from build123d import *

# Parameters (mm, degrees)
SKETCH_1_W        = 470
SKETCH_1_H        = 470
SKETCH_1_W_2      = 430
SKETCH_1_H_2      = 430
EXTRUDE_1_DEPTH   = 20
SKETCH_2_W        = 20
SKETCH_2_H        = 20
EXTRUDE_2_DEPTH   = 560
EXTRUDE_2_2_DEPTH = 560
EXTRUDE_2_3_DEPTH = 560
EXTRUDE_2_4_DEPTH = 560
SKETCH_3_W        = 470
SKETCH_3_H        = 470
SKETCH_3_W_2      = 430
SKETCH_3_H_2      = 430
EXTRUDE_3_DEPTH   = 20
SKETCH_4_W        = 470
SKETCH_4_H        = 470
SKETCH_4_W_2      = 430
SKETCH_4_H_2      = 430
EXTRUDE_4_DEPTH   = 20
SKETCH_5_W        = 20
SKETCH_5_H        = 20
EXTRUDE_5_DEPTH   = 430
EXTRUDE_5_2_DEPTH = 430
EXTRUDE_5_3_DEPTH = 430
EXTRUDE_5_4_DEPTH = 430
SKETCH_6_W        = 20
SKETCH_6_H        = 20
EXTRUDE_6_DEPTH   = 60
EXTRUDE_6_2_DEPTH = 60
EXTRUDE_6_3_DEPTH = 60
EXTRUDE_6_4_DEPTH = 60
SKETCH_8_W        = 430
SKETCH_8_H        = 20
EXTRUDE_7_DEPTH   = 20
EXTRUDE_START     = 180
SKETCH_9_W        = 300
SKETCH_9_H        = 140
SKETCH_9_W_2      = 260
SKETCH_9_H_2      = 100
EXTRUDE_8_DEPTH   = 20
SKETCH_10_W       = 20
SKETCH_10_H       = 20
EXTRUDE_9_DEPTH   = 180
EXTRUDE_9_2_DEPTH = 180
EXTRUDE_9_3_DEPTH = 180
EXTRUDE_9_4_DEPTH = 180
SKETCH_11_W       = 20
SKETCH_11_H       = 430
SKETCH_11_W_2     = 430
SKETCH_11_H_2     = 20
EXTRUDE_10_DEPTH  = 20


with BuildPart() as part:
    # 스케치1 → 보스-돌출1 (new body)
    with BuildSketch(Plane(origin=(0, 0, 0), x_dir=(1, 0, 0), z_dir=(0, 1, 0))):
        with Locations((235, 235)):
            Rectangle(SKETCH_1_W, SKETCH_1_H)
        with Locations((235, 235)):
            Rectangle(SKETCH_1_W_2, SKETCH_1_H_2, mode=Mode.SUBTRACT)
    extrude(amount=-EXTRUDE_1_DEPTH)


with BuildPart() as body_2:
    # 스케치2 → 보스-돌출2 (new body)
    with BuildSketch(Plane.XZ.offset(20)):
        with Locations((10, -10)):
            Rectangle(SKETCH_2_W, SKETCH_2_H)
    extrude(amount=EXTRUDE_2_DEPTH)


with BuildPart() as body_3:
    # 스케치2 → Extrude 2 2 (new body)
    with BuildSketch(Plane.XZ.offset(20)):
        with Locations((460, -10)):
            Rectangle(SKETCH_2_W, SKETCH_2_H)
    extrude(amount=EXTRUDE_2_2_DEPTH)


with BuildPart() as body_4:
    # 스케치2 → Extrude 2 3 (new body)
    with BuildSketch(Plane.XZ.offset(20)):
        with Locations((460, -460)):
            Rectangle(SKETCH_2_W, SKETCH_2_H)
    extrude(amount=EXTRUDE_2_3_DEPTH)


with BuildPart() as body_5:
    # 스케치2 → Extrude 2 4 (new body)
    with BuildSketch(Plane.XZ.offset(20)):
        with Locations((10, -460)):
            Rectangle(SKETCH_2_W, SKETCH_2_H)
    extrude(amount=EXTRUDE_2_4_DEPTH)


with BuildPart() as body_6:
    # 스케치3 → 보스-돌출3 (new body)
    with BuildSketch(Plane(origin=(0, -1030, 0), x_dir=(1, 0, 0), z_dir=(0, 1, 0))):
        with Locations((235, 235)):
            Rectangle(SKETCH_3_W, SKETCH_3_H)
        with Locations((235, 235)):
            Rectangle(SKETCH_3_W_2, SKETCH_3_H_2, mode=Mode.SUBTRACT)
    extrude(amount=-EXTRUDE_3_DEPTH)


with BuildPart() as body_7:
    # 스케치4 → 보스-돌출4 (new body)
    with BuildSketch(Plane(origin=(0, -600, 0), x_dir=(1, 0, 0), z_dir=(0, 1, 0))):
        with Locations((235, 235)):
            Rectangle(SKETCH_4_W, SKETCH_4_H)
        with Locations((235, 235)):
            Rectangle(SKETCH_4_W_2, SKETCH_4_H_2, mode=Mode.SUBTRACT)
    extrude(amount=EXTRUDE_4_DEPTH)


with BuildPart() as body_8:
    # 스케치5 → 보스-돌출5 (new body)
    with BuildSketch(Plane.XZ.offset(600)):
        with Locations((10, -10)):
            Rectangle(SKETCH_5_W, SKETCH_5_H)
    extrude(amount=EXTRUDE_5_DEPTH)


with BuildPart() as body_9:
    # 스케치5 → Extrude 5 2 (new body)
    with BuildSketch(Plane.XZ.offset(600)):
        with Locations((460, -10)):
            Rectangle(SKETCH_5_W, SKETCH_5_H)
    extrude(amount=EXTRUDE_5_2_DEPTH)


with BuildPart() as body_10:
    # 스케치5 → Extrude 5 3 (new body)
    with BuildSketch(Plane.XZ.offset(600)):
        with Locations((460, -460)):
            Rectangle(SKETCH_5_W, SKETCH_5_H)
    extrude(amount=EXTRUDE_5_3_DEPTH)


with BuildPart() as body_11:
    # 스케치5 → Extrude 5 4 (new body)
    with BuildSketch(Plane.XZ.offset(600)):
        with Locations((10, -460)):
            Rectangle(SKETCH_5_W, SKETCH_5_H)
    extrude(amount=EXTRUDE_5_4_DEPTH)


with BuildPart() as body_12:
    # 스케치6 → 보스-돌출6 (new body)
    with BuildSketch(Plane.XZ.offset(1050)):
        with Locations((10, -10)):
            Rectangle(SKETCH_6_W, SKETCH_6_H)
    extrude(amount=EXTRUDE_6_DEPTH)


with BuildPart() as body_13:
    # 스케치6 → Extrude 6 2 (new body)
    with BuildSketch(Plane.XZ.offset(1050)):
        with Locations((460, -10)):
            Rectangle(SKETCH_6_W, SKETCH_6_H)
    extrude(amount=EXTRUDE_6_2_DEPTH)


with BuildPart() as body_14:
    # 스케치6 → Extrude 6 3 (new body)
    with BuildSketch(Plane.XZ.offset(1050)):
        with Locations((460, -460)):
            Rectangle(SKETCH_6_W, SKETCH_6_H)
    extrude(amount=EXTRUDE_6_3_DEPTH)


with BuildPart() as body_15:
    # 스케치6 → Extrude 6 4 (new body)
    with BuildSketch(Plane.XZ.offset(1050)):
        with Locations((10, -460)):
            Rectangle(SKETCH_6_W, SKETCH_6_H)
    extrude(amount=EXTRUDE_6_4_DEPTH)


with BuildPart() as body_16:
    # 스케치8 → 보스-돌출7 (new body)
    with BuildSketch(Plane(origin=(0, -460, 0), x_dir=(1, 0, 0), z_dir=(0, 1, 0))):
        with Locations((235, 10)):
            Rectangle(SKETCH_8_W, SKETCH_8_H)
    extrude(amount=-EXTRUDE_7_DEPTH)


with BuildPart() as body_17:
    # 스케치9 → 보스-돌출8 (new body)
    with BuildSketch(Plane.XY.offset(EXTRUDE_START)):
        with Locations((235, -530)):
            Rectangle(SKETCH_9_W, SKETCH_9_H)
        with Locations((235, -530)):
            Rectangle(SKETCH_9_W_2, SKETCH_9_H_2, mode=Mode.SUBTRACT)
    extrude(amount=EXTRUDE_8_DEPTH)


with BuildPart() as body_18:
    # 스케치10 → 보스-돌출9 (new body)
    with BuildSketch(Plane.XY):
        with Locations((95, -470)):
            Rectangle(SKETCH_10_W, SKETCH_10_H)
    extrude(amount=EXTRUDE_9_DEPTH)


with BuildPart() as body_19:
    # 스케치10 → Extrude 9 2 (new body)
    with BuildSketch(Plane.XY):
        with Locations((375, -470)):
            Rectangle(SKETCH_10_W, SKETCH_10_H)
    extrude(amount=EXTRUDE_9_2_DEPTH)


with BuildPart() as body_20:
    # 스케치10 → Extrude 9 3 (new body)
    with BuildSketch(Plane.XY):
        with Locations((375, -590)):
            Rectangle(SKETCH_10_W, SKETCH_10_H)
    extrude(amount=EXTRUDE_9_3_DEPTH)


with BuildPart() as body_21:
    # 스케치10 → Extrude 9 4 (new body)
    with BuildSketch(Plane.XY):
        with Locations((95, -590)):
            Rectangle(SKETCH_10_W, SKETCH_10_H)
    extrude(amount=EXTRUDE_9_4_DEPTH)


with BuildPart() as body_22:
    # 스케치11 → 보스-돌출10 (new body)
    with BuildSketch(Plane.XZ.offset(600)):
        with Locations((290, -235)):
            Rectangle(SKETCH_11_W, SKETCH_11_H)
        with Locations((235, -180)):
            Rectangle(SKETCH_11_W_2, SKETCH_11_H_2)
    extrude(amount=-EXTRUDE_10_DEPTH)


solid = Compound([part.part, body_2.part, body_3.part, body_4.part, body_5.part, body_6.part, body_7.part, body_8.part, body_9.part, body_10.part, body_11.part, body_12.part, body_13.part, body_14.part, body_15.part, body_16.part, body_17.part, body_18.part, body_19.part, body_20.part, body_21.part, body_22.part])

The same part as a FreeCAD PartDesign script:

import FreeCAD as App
import Part
import Sketcher

V = App.Vector


def add_polygon(sketch, points):
    """Adds a closed chain of lines whose ends are joined by coincident constraints."""
    first, n = sketch.GeometryCount, len(points)
    for a, b in zip(points, points[1:] + points[:1]):
        sketch.addGeometry(Part.LineSegment(App.Vector(*a, 0), App.Vector(*b, 0)), False)
    for i in range(n):
        sketch.addConstraint(Sketcher.Constraint("Coincident", first + i, 2, first + (i + 1) % n, 1))

doc = App.newDocument("Part")
params = doc.addObject("Spreadsheet::Sheet", "Params")
for row, (alias, value) in enumerate([
    ("sketch1_width", "470 mm"),
    ("sketch1_width2", "430 mm"),
    ("pad1_length", "20 mm"),
    ("sketch2_width", "20 mm"),
    ("pad2_length", "560 mm"),
    ("sketch3_width", "20 mm"),
    ("pad3_length", "560 mm"),
    ("sketch4_width", "20 mm"),
    ("pad4_length", "560 mm"),
    ("sketch5_width", "20 mm"),
    ("pad5_length", "560 mm"),
    ("sketch6_width", "470 mm"),
    ("sketch6_width2", "430 mm"),
    ("pad6_length", "20 mm"),
    ("sketch7_width", "470 mm"),
    ("sketch7_width2", "430 mm"),
    ("pad7_length", "20 mm"),
    ("sketch8_width", "20 mm"),
    ("pad8_length", "430 mm"),
    ("sketch9_width", "20 mm"),
    ("pad9_length", "430 mm"),
    ("sketch10_width", "20 mm"),
    ("pad10_length", "430 mm"),
    ("sketch11_width", "20 mm"),
    ("pad11_length", "430 mm"),
    ("sketch12_width", "20 mm"),
    ("pad12_length", "60 mm"),
    ("sketch13_width", "20 mm"),
    ("pad13_length", "60 mm"),
    ("sketch14_width", "20 mm"),
    ("pad14_length", "60 mm"),
    ("sketch15_width", "20 mm"),
    ("pad15_length", "60 mm"),
    ("sketch16_width", "430 mm"),
    ("sketch16_height", "20 mm"),
    ("pad16_length", "20 mm"),
    ("sketch17_width", "300 mm"),
    ("sketch17_width2", "260 mm"),
    ("sketch17_height", "140 mm"),
    ("sketch17_height2", "100 mm"),
    ("pad17_length", "20 mm"),
    ("sketch18_width", "20 mm"),
    ("pad18_length", "180 mm"),
    ("sketch19_width", "20 mm"),
    ("pad19_length", "180 mm"),
    ("sketch20_width", "20 mm"),
    ("pad20_length", "180 mm"),
    ("sketch21_width", "20 mm"),
    ("pad21_length", "180 mm"),
    ("sketch22_width", "20 mm"),
    ("sketch22_width2", "150 mm"),
    ("sketch22_width3", "260 mm"),
    ("pad22_length", "20 mm"),
], start=1):
    params.set(f"A{row}", alias)
    params.set(f"B{row}", "=" + value)
    params.setAlias(f"B{row}", alias)

body = doc.addObject("PartDesign::Body", "Body")

# Sketch on XZ plane
sketch1 = doc.addObject("Sketcher::SketchObject", "Sketch")
body.addObject(sketch1)
sketch1.AttachmentSupport = (doc.XZ_Plane, [""])
sketch1.MapMode = "FlatFace"
add_polygon(sketch1, [(0, -470), (0, 0), (470, 0), (470, -470)])  # lines 0-3
add_polygon(sketch1, [(450, -20), (20, -20), (20, -450), (450, -450)])  # lines 4-7
sketch1.addConstraint(Sketcher.Constraint("Vertical", 0))
sketch1.addConstraint(Sketcher.Constraint("Horizontal", 1))
sketch1.addConstraint(Sketcher.Constraint("Vertical", 2))
sketch1.addConstraint(Sketcher.Constraint("Horizontal", 3))
sketch1.addConstraint(Sketcher.Constraint("Horizontal", 4))
sketch1.addConstraint(Sketcher.Constraint("Vertical", 5))
sketch1.addConstraint(Sketcher.Constraint("Horizontal", 6))
sketch1.addConstraint(Sketcher.Constraint("Vertical", 7))
sketch1.addConstraint(Sketcher.Constraint("Coincident", 0, 2, -1, 1))
sketch1.addConstraint(Sketcher.Constraint("Equal", 3, 0))
sketch1.addConstraint(Sketcher.Constraint("Equal", 6, 5))
sketch1.addConstraint(Sketcher.Constraint("DistanceX", 1, 1, 1, 2, 470.0))
sketch1.addConstraint(Sketcher.Constraint("DistanceX", 4, 2, 4, 1, 430.0))
sketch1.addConstraint(Sketcher.Constraint("DistanceX", -1, 1, 4, 2, 20.0))
sketch1.addConstraint(Sketcher.Constraint("DistanceY", 4, 2, -1, 1, 20.0))
sketch1.setExpression("Constraints[19]", "Params.sketch1_width")
sketch1.setExpression("Constraints[20]", "Params.sketch1_width2")
pad1 = doc.addObject("PartDesign::Pad", "Pad")
body.addObject(pad1)
pad1.Profile = sketch1
pad1.setExpression("Length", "Params.pad1_length")
body2 = doc.addObject("PartDesign::Body", "Body001")

# Sketch on XZ plane
sketch2 = doc.addObject("Sketcher::SketchObject", "Sketch001")
body2.addObject(sketch2)
sketch2.AttachmentSupport = (doc.getObject("XZ_Plane001"), [""])
sketch2.MapMode = "FlatFace"
sketch2.AttachmentOffset = App.Placement(V(0, 0, 20), App.Rotation())
add_polygon(sketch2, [(0, 0), (0, -20), (20, -20), (20, 0)])  # lines 0-3
sketch2.addConstraint(Sketcher.Constraint("Vertical", 0))
sketch2.addConstraint(Sketcher.Constraint("Horizontal", 1))
sketch2.addConstraint(Sketcher.Constraint("Vertical", 2))
sketch2.addConstraint(Sketcher.Constraint("Horizontal", 3))
sketch2.addConstraint(Sketcher.Constraint("Coincident", 3, 2, -1, 1))
sketch2.addConstraint(Sketcher.Constraint("Equal", 3, 0))
sketch2.addConstraint(Sketcher.Constraint("DistanceX", 1, 1, 1, 2, 20.0))
sketch2.setExpression("Constraints[10]", "Params.sketch2_width")
pad2 = doc.addObject("PartDesign::Pad", "Pad001")
body2.addObject(pad2)
pad2.Profile = sketch2
pad2.setExpression("Length", "Params.pad2_length")
body3 = doc.addObject("PartDesign::Body", "Body002")

# Sketch on XZ plane
sketch3 = doc.addObject("Sketcher::SketchObject", "Sketch002")
body3.addObject(sketch3)
sketch3.AttachmentSupport = (doc.getObject("XZ_Plane002"), [""])
sketch3.MapMode = "FlatFace"
sketch3.AttachmentOffset = App.Placement(V(0, 0, 20), App.Rotation())
add_polygon(sketch3, [(450, 0), (450, -20), (470, -20), (470, 0)])  # lines 0-3
sketch3.addConstraint(Sketcher.Constraint("Vertical", 0))
sketch3.addConstraint(Sketcher.Constraint("Horizontal", 1))
sketch3.addConstraint(Sketcher.Constraint("Vertical", 2))
sketch3.addConstraint(Sketcher.Constraint("Horizontal", 3))
sketch3.addConstraint(Sketcher.Constraint("PointOnObject", 2, 2, -1))
sketch3.addConstraint(Sketcher.Constraint("Equal", 3, 0))
sketch3.addConstraint(Sketcher.Constraint("DistanceX", 1, 1, 1, 2, 20.0))
sketch3.addConstraint(Sketcher.Constraint("DistanceX", -1, 1, 0, 2, 450.0))
sketch3.setExpression("Constraints[10]", "Params.sketch3_width")
pad3 = doc.addObject("PartDesign::Pad", "Pad002")
body3.addObject(pad3)
pad3.Profile = sketch3
pad3.setExpression("Length", "Params.pad3_length")
body4 = doc.addObject("PartDesign::Body", "Body003")

# Sketch on XZ plane
sketch4 = doc.addObject("Sketcher::SketchObject", "Sketch003")
body4.addObject(sketch4)
sketch4.AttachmentSupport = (doc.getObject("XZ_Plane003"), [""])
sketch4.MapMode = "FlatFace"
sketch4.AttachmentOffset = App.Placement(V(0, 0, 20), App.Rotation())
add_polygon(sketch4, [(450, -450), (450, -470), (470, -470), (470, -450)])  # lines 0-3
sketch4.addConstraint(Sketcher.Constraint("Vertical", 0))
sketch4.addConstraint(Sketcher.Constraint("Horizontal", 1))
sketch4.addConstraint(Sketcher.Constraint("Vertical", 2))
sketch4.addConstraint(Sketcher.Constraint("Horizontal", 3))
sketch4.addConstraint(Sketcher.Constraint("Equal", 3, 0))
sketch4.addConstraint(Sketcher.Constraint("DistanceX", 1, 1, 1, 2, 20.0))
sketch4.addConstraint(Sketcher.Constraint("DistanceX", -1, 1, 0, 2, 450.0))
sketch4.addConstraint(Sketcher.Constraint("DistanceY", 0, 2, -1, 1, 470.0))
sketch4.setExpression("Constraints[9]", "Params.sketch4_width")
pad4 = doc.addObject("PartDesign::Pad", "Pad003")
body4.addObject(pad4)
pad4.Profile = sketch4
pad4.setExpression("Length", "Params.pad4_length")
body5 = doc.addObject("PartDesign::Body", "Body004")

# Sketch on XZ plane
sketch5 = doc.addObject("Sketcher::SketchObject", "Sketch004")
body5.addObject(sketch5)
sketch5.AttachmentSupport = (doc.getObject("XZ_Plane004"), [""])
sketch5.MapMode = "FlatFace"
sketch5.AttachmentOffset = App.Placement(V(0, 0, 20), App.Rotation())
add_polygon(sketch5, [(0, -450), (0, -470), (20, -470), (20, -450)])  # lines 0-3
sketch5.addConstraint(Sketcher.Constraint("Vertical", 0))
sketch5.addConstraint(Sketcher.Constraint("Horizontal", 1))
sketch5.addConstraint(Sketcher.Constraint("Vertical", 2))
sketch5.addConstraint(Sketcher.Constraint("Horizontal", 3))
sketch5.addConstraint(Sketcher.Constraint("PointOnObject", 0, 2, -2))
sketch5.addConstraint(Sketcher.Constraint("Equal", 3, 0))
sketch5.addConstraint(Sketcher.Constraint("DistanceX", 1, 1, 1, 2, 20.0))
sketch5.addConstraint(Sketcher.Constraint("DistanceY", 0, 2, -1, 1, 470.0))
sketch5.setExpression("Constraints[10]", "Params.sketch5_width")
pad5 = doc.addObject("PartDesign::Pad", "Pad004")
body5.addObject(pad5)
pad5.Profile = sketch5
pad5.setExpression("Length", "Params.pad5_length")
body6 = doc.addObject("PartDesign::Body", "Body005")

# Sketch on XZ plane
sketch6 = doc.addObject("Sketcher::SketchObject", "Sketch005")
body6.addObject(sketch6)
sketch6.AttachmentSupport = (doc.getObject("XZ_Plane005"), [""])
sketch6.MapMode = "FlatFace"
sketch6.AttachmentOffset = App.Placement(V(0, 0, 1030), App.Rotation())
add_polygon(sketch6, [(0, -470), (0, 0), (470, 0), (470, -470)])  # lines 0-3
add_polygon(sketch6, [(450, -20), (20, -20), (20, -450), (450, -450)])  # lines 4-7
sketch6.addConstraint(Sketcher.Constraint("Vertical", 0))
sketch6.addConstraint(Sketcher.Constraint("Horizontal", 1))
sketch6.addConstraint(Sketcher.Constraint("Vertical", 2))
sketch6.addConstraint(Sketcher.Constraint("Horizontal", 3))
sketch6.addConstraint(Sketcher.Constraint("Horizontal", 4))
sketch6.addConstraint(Sketcher.Constraint("Vertical", 5))
sketch6.addConstraint(Sketcher.Constraint("Horizontal", 6))
sketch6.addConstraint(Sketcher.Constraint("Vertical", 7))
sketch6.addConstraint(Sketcher.Constraint("Coincident", 0, 2, -1, 1))
sketch6.addConstraint(Sketcher.Constraint("Equal", 3, 0))
sketch6.addConstraint(Sketcher.Constraint("Equal", 6, 5))
sketch6.addConstraint(Sketcher.Constraint("DistanceX", 1, 1, 1, 2, 470.0))
sketch6.addConstraint(Sketcher.Constraint("DistanceX", 4, 2, 4, 1, 430.0))
sketch6.addConstraint(Sketcher.Constraint("DistanceX", -1, 1, 4, 2, 20.0))
sketch6.addConstraint(Sketcher.Constraint("DistanceY", 4, 2, -1, 1, 20.0))
sketch6.setExpression("Constraints[19]", "Params.sketch6_width")
sketch6.setExpression("Constraints[20]", "Params.sketch6_width2")
pad6 = doc.addObject("PartDesign::Pad", "Pad005")
body6.addObject(pad6)
pad6.Profile = sketch6
pad6.setExpression("Length", "Params.pad6_length")
body7 = doc.addObject("PartDesign::Body", "Body006")

# Sketch on XZ plane
sketch7 = doc.addObject("Sketcher::SketchObject", "Sketch006")
body7.addObject(sketch7)
sketch7.AttachmentSupport = (doc.getObject("XZ_Plane006"), [""])
sketch7.MapMode = "FlatFace"
sketch7.AttachmentOffset = App.Placement(V(0, 0, 600), App.Rotation())
add_polygon(sketch7, [(0, -470), (0, 0), (470, 0), (470, -470)])  # lines 0-3
add_polygon(sketch7, [(450, -20), (20, -20), (20, -450), (450, -450)])  # lines 4-7
sketch7.addConstraint(Sketcher.Constraint("Vertical", 0))
sketch7.addConstraint(Sketcher.Constraint("Horizontal", 1))
sketch7.addConstraint(Sketcher.Constraint("Vertical", 2))
sketch7.addConstraint(Sketcher.Constraint("Horizontal", 3))
sketch7.addConstraint(Sketcher.Constraint("Horizontal", 4))
sketch7.addConstraint(Sketcher.Constraint("Vertical", 5))
sketch7.addConstraint(Sketcher.Constraint("Horizontal", 6))
sketch7.addConstraint(Sketcher.Constraint("Vertical", 7))
sketch7.addConstraint(Sketcher.Constraint("Coincident", 0, 2, -1, 1))
sketch7.addConstraint(Sketcher.Constraint("Equal", 3, 0))
sketch7.addConstraint(Sketcher.Constraint("Equal", 6, 5))
sketch7.addConstraint(Sketcher.Constraint("DistanceX", 1, 1, 1, 2, 470.0))
sketch7.addConstraint(Sketcher.Constraint("DistanceX", 4, 2, 4, 1, 430.0))
sketch7.addConstraint(Sketcher.Constraint("DistanceX", -1, 1, 4, 2, 20.0))
sketch7.addConstraint(Sketcher.Constraint("DistanceY", 4, 2, -1, 1, 20.0))
sketch7.setExpression("Constraints[19]", "Params.sketch7_width")
sketch7.setExpression("Constraints[20]", "Params.sketch7_width2")
pad7 = doc.addObject("PartDesign::Pad", "Pad006")
body7.addObject(pad7)
pad7.Profile = sketch7
pad7.setExpression("Length", "Params.pad7_length")
pad7.Reversed = True
body8 = doc.addObject("PartDesign::Body", "Body007")

# Sketch on XZ plane
sketch8 = doc.addObject("Sketcher::SketchObject", "Sketch007")
body8.addObject(sketch8)
sketch8.AttachmentSupport = (doc.getObject("XZ_Plane007"), [""])
sketch8.MapMode = "FlatFace"
sketch8.AttachmentOffset = App.Placement(V(0, 0, 600), App.Rotation())
add_polygon(sketch8, [(0, 0), (0, -20), (20, -20), (20, 0)])  # lines 0-3
sketch8.addConstraint(Sketcher.Constraint("Vertical", 0))
sketch8.addConstraint(Sketcher.Constraint("Horizontal", 1))
sketch8.addConstraint(Sketcher.Constraint("Vertical", 2))
sketch8.addConstraint(Sketcher.Constraint("Horizontal", 3))
sketch8.addConstraint(Sketcher.Constraint("Coincident", 3, 2, -1, 1))
sketch8.addConstraint(Sketcher.Constraint("Equal", 3, 0))
sketch8.addConstraint(Sketcher.Constraint("DistanceX", 1, 1, 1, 2, 20.0))
sketch8.setExpression("Constraints[10]", "Params.sketch8_width")
pad8 = doc.addObject("PartDesign::Pad", "Pad007")
body8.addObject(pad8)
pad8.Profile = sketch8
pad8.setExpression("Length", "Params.pad8_length")
body9 = doc.addObject("PartDesign::Body", "Body008")

# Sketch on XZ plane
sketch9 = doc.addObject("Sketcher::SketchObject", "Sketch008")
body9.addObject(sketch9)
sketch9.AttachmentSupport = (doc.getObject("XZ_Plane008"), [""])
sketch9.MapMode = "FlatFace"
sketch9.AttachmentOffset = App.Placement(V(0, 0, 600), App.Rotation())
add_polygon(sketch9, [(450, 0), (450, -20), (470, -20), (470, 0)])  # lines 0-3
sketch9.addConstraint(Sketcher.Constraint("Vertical", 0))
sketch9.addConstraint(Sketcher.Constraint("Horizontal", 1))
sketch9.addConstraint(Sketcher.Constraint("Vertical", 2))
sketch9.addConstraint(Sketcher.Constraint("Horizontal", 3))
sketch9.addConstraint(Sketcher.Constraint("PointOnObject", 2, 2, -1))
sketch9.addConstraint(Sketcher.Constraint("Equal", 3, 0))
sketch9.addConstraint(Sketcher.Constraint("DistanceX", 1, 1, 1, 2, 20.0))
sketch9.addConstraint(Sketcher.Constraint("DistanceX", -1, 1, 0, 2, 450.0))
sketch9.setExpression("Constraints[10]", "Params.sketch9_width")
pad9 = doc.addObject("PartDesign::Pad", "Pad008")
body9.addObject(pad9)
pad9.Profile = sketch9
pad9.setExpression("Length", "Params.pad9_length")
body10 = doc.addObject("PartDesign::Body", "Body009")

# Sketch on XZ plane
sketch10 = doc.addObject("Sketcher::SketchObject", "Sketch009")
body10.addObject(sketch10)
sketch10.AttachmentSupport = (doc.getObject("XZ_Plane009"), [""])
sketch10.MapMode = "FlatFace"
sketch10.AttachmentOffset = App.Placement(V(0, 0, 600), App.Rotation())
add_polygon(sketch10, [(450, -450), (450, -470), (470, -470), (470, -450)])  # lines 0-3
sketch10.addConstraint(Sketcher.Constraint("Vertical", 0))
sketch10.addConstraint(Sketcher.Constraint("Horizontal", 1))
sketch10.addConstraint(Sketcher.Constraint("Vertical", 2))
sketch10.addConstraint(Sketcher.Constraint("Horizontal", 3))
sketch10.addConstraint(Sketcher.Constraint("Equal", 3, 0))
sketch10.addConstraint(Sketcher.Constraint("DistanceX", 1, 1, 1, 2, 20.0))
sketch10.addConstraint(Sketcher.Constraint("DistanceX", -1, 1, 0, 2, 450.0))
sketch10.addConstraint(Sketcher.Constraint("DistanceY", 0, 2, -1, 1, 470.0))
sketch10.setExpression("Constraints[9]", "Params.sketch10_width")
pad10 = doc.addObject("PartDesign::Pad", "Pad009")
body10.addObject(pad10)
pad10.Profile = sketch10
pad10.setExpression("Length", "Params.pad10_length")
body11 = doc.addObject("PartDesign::Body", "Body010")

# Sketch on XZ plane
sketch11 = doc.addObject("Sketcher::SketchObject", "Sketch010")
body11.addObject(sketch11)
sketch11.AttachmentSupport = (doc.getObject("XZ_Plane010"), [""])
sketch11.MapMode = "FlatFace"
sketch11.AttachmentOffset = App.Placement(V(0, 0, 600), App.Rotation())
add_polygon(sketch11, [(0, -450), (0, -470), (20, -470), (20, -450)])  # lines 0-3
sketch11.addConstraint(Sketcher.Constraint("Vertical", 0))
sketch11.addConstraint(Sketcher.Constraint("Horizontal", 1))
sketch11.addConstraint(Sketcher.Constraint("Vertical", 2))
sketch11.addConstraint(Sketcher.Constraint("Horizontal", 3))
sketch11.addConstraint(Sketcher.Constraint("PointOnObject", 0, 2, -2))
sketch11.addConstraint(Sketcher.Constraint("Equal", 3, 0))
sketch11.addConstraint(Sketcher.Constraint("DistanceX", 1, 1, 1, 2, 20.0))
sketch11.addConstraint(Sketcher.Constraint("DistanceY", 0, 2, -1, 1, 470.0))
sketch11.setExpression("Constraints[10]", "Params.sketch11_width")
pad11 = doc.addObject("PartDesign::Pad", "Pad010")
body11.addObject(pad11)
pad11.Profile = sketch11
pad11.setExpression("Length", "Params.pad11_length")
body12 = doc.addObject("PartDesign::Body", "Body011")

# Sketch on XZ plane
sketch12 = doc.addObject("Sketcher::SketchObject", "Sketch011")
body12.addObject(sketch12)
sketch12.AttachmentSupport = (doc.getObject("XZ_Plane011"), [""])
sketch12.MapMode = "FlatFace"
sketch12.AttachmentOffset = App.Placement(V(0, 0, 1050), App.Rotation())
add_polygon(sketch12, [(0, 0), (0, -20), (20, -20), (20, 0)])  # lines 0-3
sketch12.addConstraint(Sketcher.Constraint("Vertical", 0))
sketch12.addConstraint(Sketcher.Constraint("Horizontal", 1))
sketch12.addConstraint(Sketcher.Constraint("Vertical", 2))
sketch12.addConstraint(Sketcher.Constraint("Horizontal", 3))
sketch12.addConstraint(Sketcher.Constraint("Coincident", 3, 2, -1, 1))
sketch12.addConstraint(Sketcher.Constraint("Equal", 3, 0))
sketch12.addConstraint(Sketcher.Constraint("DistanceX", 1, 1, 1, 2, 20.0))
sketch12.setExpression("Constraints[10]", "Params.sketch12_width")
pad12 = doc.addObject("PartDesign::Pad", "Pad011")
body12.addObject(pad12)
pad12.Profile = sketch12
pad12.setExpression("Length", "Params.pad12_length")
body13 = doc.addObject("PartDesign::Body", "Body012")

# Sketch on XZ plane
sketch13 = doc.addObject("Sketcher::SketchObject", "Sketch012")
body13.addObject(sketch13)
sketch13.AttachmentSupport = (doc.getObject("XZ_Plane012"), [""])
sketch13.MapMode = "FlatFace"
sketch13.AttachmentOffset = App.Placement(V(0, 0, 1050), App.Rotation())
add_polygon(sketch13, [(450, 0), (450, -20), (470, -20), (470, 0)])  # lines 0-3
sketch13.addConstraint(Sketcher.Constraint("Vertical", 0))
sketch13.addConstraint(Sketcher.Constraint("Horizontal", 1))
sketch13.addConstraint(Sketcher.Constraint("Vertical", 2))
sketch13.addConstraint(Sketcher.Constraint("Horizontal", 3))
sketch13.addConstraint(Sketcher.Constraint("PointOnObject", 2, 2, -1))
sketch13.addConstraint(Sketcher.Constraint("Equal", 3, 0))
sketch13.addConstraint(Sketcher.Constraint("DistanceX", 1, 1, 1, 2, 20.0))
sketch13.addConstraint(Sketcher.Constraint("DistanceX", -1, 1, 0, 2, 450.0))
sketch13.setExpression("Constraints[10]", "Params.sketch13_width")
pad13 = doc.addObject("PartDesign::Pad", "Pad012")
body13.addObject(pad13)
pad13.Profile = sketch13
pad13.setExpression("Length", "Params.pad13_length")
body14 = doc.addObject("PartDesign::Body", "Body013")

# Sketch on XZ plane
sketch14 = doc.addObject("Sketcher::SketchObject", "Sketch013")
body14.addObject(sketch14)
sketch14.AttachmentSupport = (doc.getObject("XZ_Plane013"), [""])
sketch14.MapMode = "FlatFace"
sketch14.AttachmentOffset = App.Placement(V(0, 0, 1050), App.Rotation())
add_polygon(sketch14, [(450, -450), (450, -470), (470, -470), (470, -450)])  # lines 0-3
sketch14.addConstraint(Sketcher.Constraint("Vertical", 0))
sketch14.addConstraint(Sketcher.Constraint("Horizontal", 1))
sketch14.addConstraint(Sketcher.Constraint("Vertical", 2))
sketch14.addConstraint(Sketcher.Constraint("Horizontal", 3))
sketch14.addConstraint(Sketcher.Constraint("Equal", 3, 0))
sketch14.addConstraint(Sketcher.Constraint("DistanceX", 1, 1, 1, 2, 20.0))
sketch14.addConstraint(Sketcher.Constraint("DistanceX", -1, 1, 0, 2, 450.0))
sketch14.addConstraint(Sketcher.Constraint("DistanceY", 0, 2, -1, 1, 470.0))
sketch14.setExpression("Constraints[9]", "Params.sketch14_width")
pad14 = doc.addObject("PartDesign::Pad", "Pad013")
body14.addObject(pad14)
pad14.Profile = sketch14
pad14.setExpression("Length", "Params.pad14_length")
body15 = doc.addObject("PartDesign::Body", "Body014")

# Sketch on XZ plane
sketch15 = doc.addObject("Sketcher::SketchObject", "Sketch014")
body15.addObject(sketch15)
sketch15.AttachmentSupport = (doc.getObject("XZ_Plane014"), [""])
sketch15.MapMode = "FlatFace"
sketch15.AttachmentOffset = App.Placement(V(0, 0, 1050), App.Rotation())
add_polygon(sketch15, [(0, -450), (0, -470), (20, -470), (20, -450)])  # lines 0-3
sketch15.addConstraint(Sketcher.Constraint("Vertical", 0))
sketch15.addConstraint(Sketcher.Constraint("Horizontal", 1))
sketch15.addConstraint(Sketcher.Constraint("Vertical", 2))
sketch15.addConstraint(Sketcher.Constraint("Horizontal", 3))
sketch15.addConstraint(Sketcher.Constraint("PointOnObject", 0, 2, -2))
sketch15.addConstraint(Sketcher.Constraint("Equal", 3, 0))
sketch15.addConstraint(Sketcher.Constraint("DistanceX", 1, 1, 1, 2, 20.0))
sketch15.addConstraint(Sketcher.Constraint("DistanceY", 0, 2, -1, 1, 470.0))
sketch15.setExpression("Constraints[10]", "Params.sketch15_width")
pad15 = doc.addObject("PartDesign::Pad", "Pad014")
body15.addObject(pad15)
pad15.Profile = sketch15
pad15.setExpression("Length", "Params.pad15_length")
body16 = doc.addObject("PartDesign::Body", "Body015")

# Sketch on XZ plane
sketch16 = doc.addObject("Sketcher::SketchObject", "Sketch015")
body16.addObject(sketch16)
sketch16.AttachmentSupport = (doc.getObject("XZ_Plane015"), [""])
sketch16.MapMode = "FlatFace"
sketch16.AttachmentOffset = App.Placement(V(0, 0, 460), App.Rotation())
add_polygon(sketch16, [(20, -20), (20, 0), (450, 0), (450, -20)])  # lines 0-3
sketch16.addConstraint(Sketcher.Constraint("Vertical", 0))
sketch16.addConstraint(Sketcher.Constraint("Horizontal", 1))
sketch16.addConstraint(Sketcher.Constraint("Vertical", 2))
sketch16.addConstraint(Sketcher.Constraint("Horizontal", 3))
sketch16.addConstraint(Sketcher.Constraint("PointOnObject", 0, 2, -1))
sketch16.addConstraint(Sketcher.Constraint("DistanceX", 1, 1, 1, 2, 430.0))
sketch16.addConstraint(Sketcher.Constraint("DistanceY", 0, 1, 0, 2, 20.0))
sketch16.addConstraint(Sketcher.Constraint("DistanceX", -1, 1, 0, 2, 20.0))
sketch16.setExpression("Constraints[9]", "Params.sketch16_width")
sketch16.setExpression("Constraints[10]", "Params.sketch16_height")
pad16 = doc.addObject("PartDesign::Pad", "Pad015")
body16.addObject(pad16)
pad16.Profile = sketch16
pad16.setExpression("Length", "Params.pad16_length")
body17 = doc.addObject("PartDesign::Body", "Body016")

# Sketch on XY plane
sketch17 = doc.addObject("Sketcher::SketchObject", "Sketch016")
body17.addObject(sketch17)
sketch17.AttachmentSupport = (doc.getObject("XY_Plane016"), [""])
sketch17.MapMode = "FlatFace"
sketch17.AttachmentOffset = App.Placement(V(0, 0, 180), App.Rotation())
add_polygon(sketch17, [(85, -460), (85, -600), (385, -600), (385, -460)])  # lines 0-3
add_polygon(sketch17, [(365, -580), (105, -580), (105, -480), (365, -480)])  # lines 4-7
sketch17.addConstraint(Sketcher.Constraint("Vertical", 0))
sketch17.addConstraint(Sketcher.Constraint("Horizontal", 1))
sketch17.addConstraint(Sketcher.Constraint("Vertical", 2))
sketch17.addConstraint(Sketcher.Constraint("Horizontal", 3))
sketch17.addConstraint(Sketcher.Constraint("Horizontal", 4))
sketch17.addConstraint(Sketcher.Constraint("Vertical", 5))
sketch17.addConstraint(Sketcher.Constraint("Horizontal", 6))
sketch17.addConstraint(Sketcher.Constraint("Vertical", 7))
sketch17.addConstraint(Sketcher.Constraint("DistanceX", 1, 1, 1, 2, 300.0))
sketch17.addConstraint(Sketcher.Constraint("DistanceX", 4, 2, 4, 1, 260.0))
sketch17.addConstraint(Sketcher.Constraint("DistanceY", 0, 2, 0, 1, 140.0))
sketch17.addConstraint(Sketcher.Constraint("DistanceY", 5, 1, 5, 2, 100.0))
sketch17.addConstraint(Sketcher.Constraint("DistanceX", -1, 1, 0, 2, 85.0))
sketch17.addConstraint(Sketcher.Constraint("DistanceY", 0, 2, -1, 1, 600.0))
sketch17.addConstraint(Sketcher.Constraint("DistanceX", -1, 1, 4, 2, 105.0))
sketch17.addConstraint(Sketcher.Constraint("DistanceY", 4, 2, -1, 1, 580.0))
sketch17.setExpression("Constraints[16]", "Params.sketch17_width")
sketch17.setExpression("Constraints[17]", "Params.sketch17_width2")
sketch17.setExpression("Constraints[18]", "Params.sketch17_height")
sketch17.setExpression("Constraints[19]", "Params.sketch17_height2")
pad17 = doc.addObject("PartDesign::Pad", "Pad016")
body17.addObject(pad17)
pad17.Profile = sketch17
pad17.setExpression("Length", "Params.pad17_length")
body18 = doc.addObject("PartDesign::Body", "Body017")

# Sketch on XY plane
sketch18 = doc.addObject("Sketcher::SketchObject", "Sketch017")
body18.addObject(sketch18)
sketch18.AttachmentSupport = (doc.getObject("XY_Plane017"), [""])
sketch18.MapMode = "FlatFace"
add_polygon(sketch18, [(85, -460), (85, -480), (105, -480), (105, -460)])  # lines 0-3
sketch18.addConstraint(Sketcher.Constraint("Vertical", 0))
sketch18.addConstraint(Sketcher.Constraint("Horizontal", 1))
sketch18.addConstraint(Sketcher.Constraint("Vertical", 2))
sketch18.addConstraint(Sketcher.Constraint("Horizontal", 3))
sketch18.addConstraint(Sketcher.Constraint("Equal", 3, 0))
sketch18.addConstraint(Sketcher.Constraint("DistanceX", 1, 1, 1, 2, 20.0))
sketch18.addConstraint(Sketcher.Constraint("DistanceX", -1, 1, 0, 2, 85.0))
sketch18.addConstraint(Sketcher.Constraint("DistanceY", 0, 2, -1, 1, 480.0))
sketch18.setExpression("Constraints[9]", "Params.sketch18_width")
pad18 = doc.addObject("PartDesign::Pad", "Pad017")
body18.addObject(pad18)
pad18.Profile = sketch18
pad18.setExpression("Length", "Params.pad18_length")
body19 = doc.addObject("PartDesign::Body", "Body018")

# Sketch on XY plane
sketch19 = doc.addObject("Sketcher::SketchObject", "Sketch018")
body19.addObject(sketch19)
sketch19.AttachmentSupport = (doc.getObject("XY_Plane018"), [""])
sketch19.MapMode = "FlatFace"
add_polygon(sketch19, [(365, -460), (365, -480), (385, -480), (385, -460)])  # lines 0-3
sketch19.addConstraint(Sketcher.Constraint("Vertical", 0))
sketch19.addConstraint(Sketcher.Constraint("Horizontal", 1))
sketch19.addConstraint(Sketcher.Constraint("Vertical", 2))
sketch19.addConstraint(Sketcher.Constraint("Horizontal", 3))
sketch19.addConstraint(Sketcher.Constraint("Equal", 3, 0))
sketch19.addConstraint(Sketcher.Constraint("DistanceX", 1, 1, 1, 2, 20.0))
sketch19.addConstraint(Sketcher.Constraint("DistanceX", -1, 1, 0, 2, 365.0))
sketch19.addConstraint(Sketcher.Constraint("DistanceY", 0, 2, -1, 1, 480.0))
sketch19.setExpression("Constraints[9]", "Params.sketch19_width")
pad19 = doc.addObject("PartDesign::Pad", "Pad018")
body19.addObject(pad19)
pad19.Profile = sketch19
pad19.setExpression("Length", "Params.pad19_length")
body20 = doc.addObject("PartDesign::Body", "Body019")

# Sketch on XY plane
sketch20 = doc.addObject("Sketcher::SketchObject", "Sketch019")
body20.addObject(sketch20)
sketch20.AttachmentSupport = (doc.getObject("XY_Plane019"), [""])
sketch20.MapMode = "FlatFace"
add_polygon(sketch20, [(365, -580), (365, -600), (385, -600), (385, -580)])  # lines 0-3
sketch20.addConstraint(Sketcher.Constraint("Vertical", 0))
sketch20.addConstraint(Sketcher.Constraint("Horizontal", 1))
sketch20.addConstraint(Sketcher.Constraint("Vertical", 2))
sketch20.addConstraint(Sketcher.Constraint("Horizontal", 3))
sketch20.addConstraint(Sketcher.Constraint("Equal", 3, 0))
sketch20.addConstraint(Sketcher.Constraint("DistanceX", 1, 1, 1, 2, 20.0))
sketch20.addConstraint(Sketcher.Constraint("DistanceX", -1, 1, 0, 2, 365.0))
sketch20.addConstraint(Sketcher.Constraint("DistanceY", 0, 2, -1, 1, 600.0))
sketch20.setExpression("Constraints[9]", "Params.sketch20_width")
pad20 = doc.addObject("PartDesign::Pad", "Pad019")
body20.addObject(pad20)
pad20.Profile = sketch20
pad20.setExpression("Length", "Params.pad20_length")
body21 = doc.addObject("PartDesign::Body", "Body020")

# Sketch on XY plane
sketch21 = doc.addObject("Sketcher::SketchObject", "Sketch020")
body21.addObject(sketch21)
sketch21.AttachmentSupport = (doc.getObject("XY_Plane020"), [""])
sketch21.MapMode = "FlatFace"
add_polygon(sketch21, [(85, -580), (85, -600), (105, -600), (105, -580)])  # lines 0-3
sketch21.addConstraint(Sketcher.Constraint("Vertical", 0))
sketch21.addConstraint(Sketcher.Constraint("Horizontal", 1))
sketch21.addConstraint(Sketcher.Constraint("Vertical", 2))
sketch21.addConstraint(Sketcher.Constraint("Horizontal", 3))
sketch21.addConstraint(Sketcher.Constraint("Equal", 3, 0))
sketch21.addConstraint(Sketcher.Constraint("DistanceX", 1, 1, 1, 2, 20.0))
sketch21.addConstraint(Sketcher.Constraint("DistanceX", -1, 1, 0, 2, 85.0))
sketch21.addConstraint(Sketcher.Constraint("DistanceY", 0, 2, -1, 1, 600.0))
sketch21.setExpression("Constraints[9]", "Params.sketch21_width")
pad21 = doc.addObject("PartDesign::Pad", "Pad020")
body21.addObject(pad21)
pad21.Profile = sketch21
pad21.setExpression("Length", "Params.pad21_length")
body22 = doc.addObject("PartDesign::Body", "Body021")

# Sketch on XZ plane
sketch22 = doc.addObject("Sketcher::SketchObject", "Sketch021")
body22.addObject(sketch22)
sketch22.AttachmentSupport = (doc.getObject("XZ_Plane021"), [""])
sketch22.MapMode = "FlatFace"
sketch22.AttachmentOffset = App.Placement(V(0, 0, 600), App.Rotation())
add_polygon(sketch22, [(280, -190), (280, -450), (300, -450), (300, -190), (450, -190), (450, -170), (300, -170), (300, -20), (280, -20), (280, -170), (20, -170), (20, -190)])  # lines 0-11
sketch22.addConstraint(Sketcher.Constraint("Vertical", 0))
sketch22.addConstraint(Sketcher.Constraint("Horizontal", 1))
sketch22.addConstraint(Sketcher.Constraint("Vertical", 2))
sketch22.addConstraint(Sketcher.Constraint("Horizontal", 3))
sketch22.addConstraint(Sketcher.Constraint("Vertical", 4))
sketch22.addConstraint(Sketcher.Constraint("Horizontal", 5))
sketch22.addConstraint(Sketcher.Constraint("Vertical", 6))
sketch22.addConstraint(Sketcher.Constraint("Horizontal", 7))
sketch22.addConstraint(Sketcher.Constraint("Vertical", 8))
sketch22.addConstraint(Sketcher.Constraint("Horizontal", 9))
sketch22.addConstraint(Sketcher.Constraint("Vertical", 10))
sketch22.addConstraint(Sketcher.Constraint("Horizontal", 11))
sketch22.addConstraint(Sketcher.Constraint("Horizontal", 5, 2, 8, 2))
sketch22.addConstraint(Sketcher.Constraint("Horizontal", 3, 2, 10, 2))
sketch22.addConstraint(Sketcher.Constraint("Vertical", 2, 2, 5, 2))
sketch22.addConstraint(Sketcher.Constraint("Vertical", 0, 2, 7, 2))
sketch22.addConstraint(Sketcher.Constraint("Equal", 11, 0))
sketch22.addConstraint(Sketcher.Constraint("Equal", 7, 4))
sketch22.addConstraint(Sketcher.Constraint("Equal", 5, 6))
sketch22.addConstraint(Sketcher.Constraint("DistanceX", 1, 1, 1, 2, 20.0))
sketch22.addConstraint(Sketcher.Constraint("DistanceX", 3, 1, 3, 2, 150.0))
sketch22.addConstraint(Sketcher.Constraint("DistanceX", 9, 2, 9, 1, 260.0))
sketch22.addConstraint(Sketcher.Constraint("DistanceX", -1, 1, 0, 2, 280.0))
sketch22.addConstraint(Sketcher.Constraint("DistanceY", 0, 2, -1, 1, 450.0))
sketch22.setExpression("Constraints[31]", "Params.sketch22_width")
sketch22.setExpression("Constraints[32]", "Params.sketch22_width2")
sketch22.setExpression("Constraints[33]", "Params.sketch22_width3")
pad22 = doc.addObject("PartDesign::Pad", "Pad021")
body22.addObject(pad22)
pad22.Profile = sketch22
pad22.setExpression("Length", "Params.pad22_length")
pad22.Reversed = True

doc.recompute()
